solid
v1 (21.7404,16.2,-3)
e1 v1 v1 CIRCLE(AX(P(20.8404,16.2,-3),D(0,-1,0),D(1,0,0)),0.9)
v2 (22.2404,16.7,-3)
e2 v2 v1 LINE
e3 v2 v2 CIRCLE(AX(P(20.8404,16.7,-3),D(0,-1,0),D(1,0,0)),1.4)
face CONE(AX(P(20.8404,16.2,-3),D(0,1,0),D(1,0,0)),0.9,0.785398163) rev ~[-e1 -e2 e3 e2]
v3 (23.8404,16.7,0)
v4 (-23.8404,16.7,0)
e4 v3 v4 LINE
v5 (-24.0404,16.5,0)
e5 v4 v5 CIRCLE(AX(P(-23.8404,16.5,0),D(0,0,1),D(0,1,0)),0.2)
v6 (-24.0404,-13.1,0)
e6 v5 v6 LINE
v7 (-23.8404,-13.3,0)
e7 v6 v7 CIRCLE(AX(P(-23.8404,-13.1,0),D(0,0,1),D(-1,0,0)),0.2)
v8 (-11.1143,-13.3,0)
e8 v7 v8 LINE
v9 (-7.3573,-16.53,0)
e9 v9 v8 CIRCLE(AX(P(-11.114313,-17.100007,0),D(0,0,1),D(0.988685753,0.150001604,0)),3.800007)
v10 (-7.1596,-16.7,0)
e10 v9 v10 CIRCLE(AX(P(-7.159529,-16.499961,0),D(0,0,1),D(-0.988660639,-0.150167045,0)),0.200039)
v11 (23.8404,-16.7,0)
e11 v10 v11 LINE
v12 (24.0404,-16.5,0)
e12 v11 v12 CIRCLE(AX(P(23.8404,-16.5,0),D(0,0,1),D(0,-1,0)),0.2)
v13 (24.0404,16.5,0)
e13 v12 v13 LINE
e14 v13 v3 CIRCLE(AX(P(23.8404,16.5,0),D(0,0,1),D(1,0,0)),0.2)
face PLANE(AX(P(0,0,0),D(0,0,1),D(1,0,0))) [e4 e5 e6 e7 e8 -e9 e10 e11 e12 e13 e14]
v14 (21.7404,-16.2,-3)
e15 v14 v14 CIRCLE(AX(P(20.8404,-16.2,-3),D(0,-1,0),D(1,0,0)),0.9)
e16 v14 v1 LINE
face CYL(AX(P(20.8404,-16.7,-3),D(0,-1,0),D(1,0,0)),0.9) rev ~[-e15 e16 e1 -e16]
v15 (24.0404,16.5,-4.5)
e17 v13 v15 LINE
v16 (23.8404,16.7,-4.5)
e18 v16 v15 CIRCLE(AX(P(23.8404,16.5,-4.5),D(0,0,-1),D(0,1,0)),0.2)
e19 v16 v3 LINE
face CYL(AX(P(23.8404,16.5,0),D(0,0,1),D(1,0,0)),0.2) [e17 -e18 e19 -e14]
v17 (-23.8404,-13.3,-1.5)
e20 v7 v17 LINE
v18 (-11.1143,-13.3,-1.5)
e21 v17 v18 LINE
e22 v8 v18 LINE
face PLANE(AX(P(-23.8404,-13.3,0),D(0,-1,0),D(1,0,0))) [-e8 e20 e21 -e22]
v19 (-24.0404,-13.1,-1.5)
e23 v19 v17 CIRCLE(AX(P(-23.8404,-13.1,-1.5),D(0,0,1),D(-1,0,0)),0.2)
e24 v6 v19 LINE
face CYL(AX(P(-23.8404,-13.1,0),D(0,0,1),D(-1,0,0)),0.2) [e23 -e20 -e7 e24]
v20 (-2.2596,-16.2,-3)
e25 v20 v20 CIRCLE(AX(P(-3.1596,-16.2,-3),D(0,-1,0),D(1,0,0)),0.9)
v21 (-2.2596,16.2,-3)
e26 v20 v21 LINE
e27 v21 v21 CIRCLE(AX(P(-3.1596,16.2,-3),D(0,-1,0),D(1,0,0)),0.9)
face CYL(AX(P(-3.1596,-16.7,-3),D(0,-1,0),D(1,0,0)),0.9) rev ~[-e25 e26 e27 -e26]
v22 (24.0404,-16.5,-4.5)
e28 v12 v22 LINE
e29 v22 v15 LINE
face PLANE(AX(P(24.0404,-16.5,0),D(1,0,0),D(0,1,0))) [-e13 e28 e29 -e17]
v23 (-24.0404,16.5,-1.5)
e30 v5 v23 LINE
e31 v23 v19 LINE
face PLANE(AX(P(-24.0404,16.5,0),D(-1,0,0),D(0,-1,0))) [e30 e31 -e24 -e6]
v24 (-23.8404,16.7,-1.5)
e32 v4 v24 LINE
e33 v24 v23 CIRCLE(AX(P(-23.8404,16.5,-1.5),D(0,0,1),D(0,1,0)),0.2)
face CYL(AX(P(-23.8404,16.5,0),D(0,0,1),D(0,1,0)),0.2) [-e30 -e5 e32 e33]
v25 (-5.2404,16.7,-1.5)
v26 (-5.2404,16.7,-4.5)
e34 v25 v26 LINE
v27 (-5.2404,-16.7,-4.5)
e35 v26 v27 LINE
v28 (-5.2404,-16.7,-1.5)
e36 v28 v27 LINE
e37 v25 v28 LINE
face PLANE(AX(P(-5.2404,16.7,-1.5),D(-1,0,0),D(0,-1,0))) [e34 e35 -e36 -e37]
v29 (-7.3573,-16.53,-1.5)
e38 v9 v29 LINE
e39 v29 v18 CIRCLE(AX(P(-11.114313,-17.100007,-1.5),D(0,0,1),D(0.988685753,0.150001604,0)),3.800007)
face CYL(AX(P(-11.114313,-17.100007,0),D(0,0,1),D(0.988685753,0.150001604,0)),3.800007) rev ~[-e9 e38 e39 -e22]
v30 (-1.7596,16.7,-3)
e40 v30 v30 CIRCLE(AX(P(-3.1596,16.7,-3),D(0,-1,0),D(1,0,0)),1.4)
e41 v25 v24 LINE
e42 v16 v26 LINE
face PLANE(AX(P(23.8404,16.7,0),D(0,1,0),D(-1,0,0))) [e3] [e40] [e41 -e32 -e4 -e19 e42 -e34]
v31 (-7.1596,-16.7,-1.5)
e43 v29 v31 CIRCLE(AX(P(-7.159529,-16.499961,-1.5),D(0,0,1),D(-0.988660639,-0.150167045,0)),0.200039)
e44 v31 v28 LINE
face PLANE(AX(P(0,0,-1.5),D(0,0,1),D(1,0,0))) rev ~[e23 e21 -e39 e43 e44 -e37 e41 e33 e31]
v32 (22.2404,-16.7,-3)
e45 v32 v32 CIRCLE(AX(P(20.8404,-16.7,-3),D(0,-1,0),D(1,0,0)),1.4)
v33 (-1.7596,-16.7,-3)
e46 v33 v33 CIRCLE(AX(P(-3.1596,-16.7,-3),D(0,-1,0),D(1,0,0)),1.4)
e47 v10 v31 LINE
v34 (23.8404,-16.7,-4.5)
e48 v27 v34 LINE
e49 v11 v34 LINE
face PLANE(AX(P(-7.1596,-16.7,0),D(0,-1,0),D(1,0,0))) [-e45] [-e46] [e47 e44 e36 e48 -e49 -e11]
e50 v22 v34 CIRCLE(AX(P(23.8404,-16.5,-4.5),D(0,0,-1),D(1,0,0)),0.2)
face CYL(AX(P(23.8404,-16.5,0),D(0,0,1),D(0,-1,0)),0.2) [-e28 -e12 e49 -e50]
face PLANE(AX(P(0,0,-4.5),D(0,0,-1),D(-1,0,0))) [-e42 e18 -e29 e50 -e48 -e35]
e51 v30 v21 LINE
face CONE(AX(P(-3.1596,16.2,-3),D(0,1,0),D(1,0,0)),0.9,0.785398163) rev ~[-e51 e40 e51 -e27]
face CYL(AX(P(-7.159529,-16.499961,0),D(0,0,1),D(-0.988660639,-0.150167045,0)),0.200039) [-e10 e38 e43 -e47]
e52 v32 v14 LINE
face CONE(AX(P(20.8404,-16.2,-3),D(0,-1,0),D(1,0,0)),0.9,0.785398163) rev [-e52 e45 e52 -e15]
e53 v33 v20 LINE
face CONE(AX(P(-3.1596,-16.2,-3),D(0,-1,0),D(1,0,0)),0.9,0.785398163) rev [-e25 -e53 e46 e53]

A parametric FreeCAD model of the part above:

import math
import FreeCAD as App
import Part
import Sketcher
Q = App.Units.Quantity


def edges_at(feature, points):
    """Names of the edges that pass closest to the given points."""
    edges = feature.Shape.Edges
    near = lambda p: min(range(len(edges)), key=lambda i: edges[i].distToShape(Part.Vertex(*p))[0])
    return sorted({f"Edge{near(p) + 1}" for p in points})

doc = App.newDocument("Part")
body = doc.addObject("PartDesign::Body", "Body")

# Sketch on XY plane
sketch1 = doc.addObject("Sketcher::SketchObject", "Sketch")
body.addObject(sketch1)
sketch1.AttachmentSupport = (doc.XY_Plane, [""])
sketch1.MapMode = "FlatFace"
sketch1.addGeometry([
    Part.ArcOfCircle(Part.Circle(App.Vector(23.8404, 16.5, 0), App.Vector(0, 0, 1), 0.2), math.radians(0), math.radians(90)),  # 0
    Part.LineSegment(App.Vector(23.8404, 16.7, 0), App.Vector(-23.8404, 16.7, 0)),  # 1
    Part.ArcOfCircle(Part.Circle(App.Vector(-23.8404, 16.5, 0), App.Vector(0, 0, 1), 0.2), math.radians(90), math.radians(180)),  # 2
    Part.LineSegment(App.Vector(-24.0404, 16.5, 0), App.Vector(-24.0404, -13.1, 0)),  # 3
    Part.ArcOfCircle(Part.Circle(App.Vector(-23.8404, -13.1, 0), App.Vector(0, 0, 1), 0.2), math.radians(180), math.radians(270)),  # 4
    Part.LineSegment(App.Vector(-23.8404, -13.3, 0), App.Vector(-11.1143, -13.3, 0)),  # 5
    Part.ArcOfCircle(Part.Circle(App.Vector(-11.1143, -17.1, 0), App.Vector(0, 0, 1), 3.799993), math.radians(8.626942), math.radians(90)),  # 6
    Part.ArcOfCircle(Part.Circle(App.Vector(-7.1596, -16.5, 0), App.Vector(0, 0, 1), 0.199963), math.radians(-171.371475), math.radians(-90)),  # 7
    Part.LineSegment(App.Vector(-7.1596, -16.7, 0), App.Vector(23.8404, -16.7, 0)),  # 8
    Part.ArcOfCircle(Part.Circle(App.Vector(23.8404, -16.5, 0), App.Vector(0, 0, 1), 0.2), math.radians(-90), math.radians(0)),  # 9
    Part.LineSegment(App.Vector(24.0404, -16.5, 0), App.Vector(24.0404, 16.5, 0)),  # 10
], False)
sketch1.addConstraint([
    Sketcher.Constraint("Tangent", 0, 2, 1, 1),
    Sketcher.Constraint("Tangent", 1, 2, 2, 1),
    Sketcher.Constraint("Tangent", 2, 2, 3, 1),
    Sketcher.Constraint("Tangent", 3, 2, 4, 1),
    Sketcher.Constraint("Tangent", 4, 2, 5, 1),
    Sketcher.Constraint("Tangent", 5, 2, 6, 2),
    Sketcher.Constraint("Tangent", 6, 1, 7, 1),
    Sketcher.Constraint("Tangent", 7, 2, 8, 1),
    Sketcher.Constraint("Tangent", 8, 2, 9, 1),
    Sketcher.Constraint("Tangent", 9, 2, 10, 1),
    Sketcher.Constraint("Tangent", 10, 2, 0, 1),
    Sketcher.Constraint("Horizontal", 1),
    Sketcher.Constraint("Vertical", 3),
    Sketcher.Constraint("Horizontal", 5),
    Sketcher.Constraint("Horizontal", 8),
    Sketcher.Constraint("Vertical", 10),
    Sketcher.Constraint("Equal", 0, 2),
    Sketcher.Constraint("Equal", 2, 4),
    Sketcher.Constraint("Equal", 4, 7),
    Sketcher.Constraint("Equal", 7, 9),
    Sketcher.Constraint("Symmetric", 2, 3, 9, 3, -1, 1),
    Sketcher.Constraint("Radius", 0, Q("0.2 mm")),
    Sketcher.Constraint("Radius", 6, Q("3.8 mm")),
    Sketcher.Constraint("DistanceX", 8, 1, 8, 2, Q("31 mm")),
    Sketcher.Constraint("DistanceY", 10, 1, 10, 2, Q("33 mm")),
    Sketcher.Constraint("DistanceY", 3, 2, 3, 1, Q("29.6 mm")),
    Sketcher.Constraint("DistanceX", 5, 1, 5, 2, Q("12.726 mm")),
])
pad1 = doc.addObject("PartDesign::Pad", "Pad")
body.addObject(pad1)
pad1.Profile = sketch1
pad1.Length = 1.5
pad1.Reversed = True

# Sketch on XY plane
sketch2 = doc.addObject("Sketcher::SketchObject", "Sketch001")
body.addObject(sketch2)
sketch2.AttachmentSupport = (doc.XY_Plane, [""])
sketch2.MapMode = "FlatFace"
sketch2.AttachmentOffset = App.Placement(App.Vector(0, 0, -1.5), App.Rotation())
sketch2.addGeometry([
    Part.LineSegment(App.Vector(23.8404, -16.7, 0), App.Vector(-5.2404, -16.7, 0)),  # 0
    Part.LineSegment(App.Vector(-5.2404, -16.7, 0), App.Vector(-5.2404, 16.7, 0)),  # 1
    Part.LineSegment(App.Vector(-5.2404, 16.7, 0), App.Vector(23.8404, 16.7, 0)),  # 2
    Part.ArcOfCircle(Part.Circle(App.Vector(23.8404, 16.5, 0), App.Vector(0, 0, 1), 0.2), math.radians(0), math.radians(90)),  # 3
    Part.LineSegment(App.Vector(24.0404, 16.5, 0), App.Vector(24.0404, -16.5, 0)),  # 4
    Part.ArcOfCircle(Part.Circle(App.Vector(23.8404, -16.5, 0), App.Vector(0, 0, 1), 0.2), math.radians(-90), math.radians(0)),  # 5
], False)
sketch2.addConstraint([
    Sketcher.Constraint("Coincident", 0, 2, 1, 1),
    Sketcher.Constraint("Coincident", 1, 2, 2, 1),
    Sketcher.Constraint("Tangent", 2, 2, 3, 2),
    Sketcher.Constraint("Tangent", 3, 1, 4, 1),
    Sketcher.Constraint("Tangent", 4, 2, 5, 2),
    Sketcher.Constraint("Tangent", 5, 1, 0, 1),
    Sketcher.Constraint("Horizontal", 0),
    Sketcher.Constraint("Vertical", 1),
    Sketcher.Constraint("Horizontal", 2),
    Sketcher.Constraint("Vertical", 4),
    Sketcher.Constraint("Equal", 3, 5),
    Sketcher.Constraint("Radius", 3, Q("0.2 mm")),
    Sketcher.Constraint("DistanceY", 4, 2, 4, 1, Q("33 mm")),
    Sketcher.Constraint("DistanceY", -1, 1, 3, 3, Q("16.5 mm")),
    Sketcher.Constraint("DistanceX", 0, 2, 0, 1, Q("29.0808 mm")),
    Sketcher.Constraint("DistanceX", -1, 1, 3, 3, Q("23.8404 mm")),
])
pad2 = doc.addObject("PartDesign::Pad", "Pad001")
body.addObject(pad2)
pad2.Profile = sketch2
pad2.Length = 3
pad2.Reversed = True

# Sketch on XZ plane
sketch3 = doc.addObject("Sketcher::SketchObject", "Sketch002")
body.addObject(sketch3)
sketch3.AttachmentSupport = (doc.XZ_Plane, [""])
sketch3.MapMode = "FlatFace"
sketch3.AttachmentOffset = App.Placement(App.Vector(0, 0, 16.7), App.Rotation())
sketch3.addGeometry([
    Part.Circle(App.Vector(20.8404, -3, 0), App.Vector(0, 0, 1), 0.9),
    Part.Circle(App.Vector(-3.1596, -3, 0), App.Vector(0, 0, 1), 0.9),
], False)
sketch3.addConstraint([
    Sketcher.Constraint("Equal", 0, 1),
    Sketcher.Constraint("Horizontal", 0, 3, 1, 3),
    Sketcher.Constraint("Diameter", 0, Q("1.8 mm")),
    Sketcher.Constraint("DistanceY", 0, 3, -1, 1, Q("3 mm")),
    Sketcher.Constraint("DistanceX", 1, 3, 0, 3, Q("24 mm")),
    Sketcher.Constraint("DistanceX", -1, 1, 0, 3, Q("20.8404 mm")),
])
pocket1 = doc.addObject("PartDesign::Pocket", "Pocket")
body.addObject(pocket1)
pocket1.Profile = sketch3
pocket1.Type = "ThroughAll"
doc.recompute()

chamfer = doc.addObject("PartDesign::Chamfer", "Chamfer")
body.addObject(chamfer)
chamfer.Base = (pocket1, edges_at(pocket1, [
    (-4.06, 16.7, -3),
    (19.94, 16.7, -3),
    (19.94, -16.7, -3),
    (-4.06, -16.7, -3),
]))
chamfer.Size = 0.5

doc.recompute()
